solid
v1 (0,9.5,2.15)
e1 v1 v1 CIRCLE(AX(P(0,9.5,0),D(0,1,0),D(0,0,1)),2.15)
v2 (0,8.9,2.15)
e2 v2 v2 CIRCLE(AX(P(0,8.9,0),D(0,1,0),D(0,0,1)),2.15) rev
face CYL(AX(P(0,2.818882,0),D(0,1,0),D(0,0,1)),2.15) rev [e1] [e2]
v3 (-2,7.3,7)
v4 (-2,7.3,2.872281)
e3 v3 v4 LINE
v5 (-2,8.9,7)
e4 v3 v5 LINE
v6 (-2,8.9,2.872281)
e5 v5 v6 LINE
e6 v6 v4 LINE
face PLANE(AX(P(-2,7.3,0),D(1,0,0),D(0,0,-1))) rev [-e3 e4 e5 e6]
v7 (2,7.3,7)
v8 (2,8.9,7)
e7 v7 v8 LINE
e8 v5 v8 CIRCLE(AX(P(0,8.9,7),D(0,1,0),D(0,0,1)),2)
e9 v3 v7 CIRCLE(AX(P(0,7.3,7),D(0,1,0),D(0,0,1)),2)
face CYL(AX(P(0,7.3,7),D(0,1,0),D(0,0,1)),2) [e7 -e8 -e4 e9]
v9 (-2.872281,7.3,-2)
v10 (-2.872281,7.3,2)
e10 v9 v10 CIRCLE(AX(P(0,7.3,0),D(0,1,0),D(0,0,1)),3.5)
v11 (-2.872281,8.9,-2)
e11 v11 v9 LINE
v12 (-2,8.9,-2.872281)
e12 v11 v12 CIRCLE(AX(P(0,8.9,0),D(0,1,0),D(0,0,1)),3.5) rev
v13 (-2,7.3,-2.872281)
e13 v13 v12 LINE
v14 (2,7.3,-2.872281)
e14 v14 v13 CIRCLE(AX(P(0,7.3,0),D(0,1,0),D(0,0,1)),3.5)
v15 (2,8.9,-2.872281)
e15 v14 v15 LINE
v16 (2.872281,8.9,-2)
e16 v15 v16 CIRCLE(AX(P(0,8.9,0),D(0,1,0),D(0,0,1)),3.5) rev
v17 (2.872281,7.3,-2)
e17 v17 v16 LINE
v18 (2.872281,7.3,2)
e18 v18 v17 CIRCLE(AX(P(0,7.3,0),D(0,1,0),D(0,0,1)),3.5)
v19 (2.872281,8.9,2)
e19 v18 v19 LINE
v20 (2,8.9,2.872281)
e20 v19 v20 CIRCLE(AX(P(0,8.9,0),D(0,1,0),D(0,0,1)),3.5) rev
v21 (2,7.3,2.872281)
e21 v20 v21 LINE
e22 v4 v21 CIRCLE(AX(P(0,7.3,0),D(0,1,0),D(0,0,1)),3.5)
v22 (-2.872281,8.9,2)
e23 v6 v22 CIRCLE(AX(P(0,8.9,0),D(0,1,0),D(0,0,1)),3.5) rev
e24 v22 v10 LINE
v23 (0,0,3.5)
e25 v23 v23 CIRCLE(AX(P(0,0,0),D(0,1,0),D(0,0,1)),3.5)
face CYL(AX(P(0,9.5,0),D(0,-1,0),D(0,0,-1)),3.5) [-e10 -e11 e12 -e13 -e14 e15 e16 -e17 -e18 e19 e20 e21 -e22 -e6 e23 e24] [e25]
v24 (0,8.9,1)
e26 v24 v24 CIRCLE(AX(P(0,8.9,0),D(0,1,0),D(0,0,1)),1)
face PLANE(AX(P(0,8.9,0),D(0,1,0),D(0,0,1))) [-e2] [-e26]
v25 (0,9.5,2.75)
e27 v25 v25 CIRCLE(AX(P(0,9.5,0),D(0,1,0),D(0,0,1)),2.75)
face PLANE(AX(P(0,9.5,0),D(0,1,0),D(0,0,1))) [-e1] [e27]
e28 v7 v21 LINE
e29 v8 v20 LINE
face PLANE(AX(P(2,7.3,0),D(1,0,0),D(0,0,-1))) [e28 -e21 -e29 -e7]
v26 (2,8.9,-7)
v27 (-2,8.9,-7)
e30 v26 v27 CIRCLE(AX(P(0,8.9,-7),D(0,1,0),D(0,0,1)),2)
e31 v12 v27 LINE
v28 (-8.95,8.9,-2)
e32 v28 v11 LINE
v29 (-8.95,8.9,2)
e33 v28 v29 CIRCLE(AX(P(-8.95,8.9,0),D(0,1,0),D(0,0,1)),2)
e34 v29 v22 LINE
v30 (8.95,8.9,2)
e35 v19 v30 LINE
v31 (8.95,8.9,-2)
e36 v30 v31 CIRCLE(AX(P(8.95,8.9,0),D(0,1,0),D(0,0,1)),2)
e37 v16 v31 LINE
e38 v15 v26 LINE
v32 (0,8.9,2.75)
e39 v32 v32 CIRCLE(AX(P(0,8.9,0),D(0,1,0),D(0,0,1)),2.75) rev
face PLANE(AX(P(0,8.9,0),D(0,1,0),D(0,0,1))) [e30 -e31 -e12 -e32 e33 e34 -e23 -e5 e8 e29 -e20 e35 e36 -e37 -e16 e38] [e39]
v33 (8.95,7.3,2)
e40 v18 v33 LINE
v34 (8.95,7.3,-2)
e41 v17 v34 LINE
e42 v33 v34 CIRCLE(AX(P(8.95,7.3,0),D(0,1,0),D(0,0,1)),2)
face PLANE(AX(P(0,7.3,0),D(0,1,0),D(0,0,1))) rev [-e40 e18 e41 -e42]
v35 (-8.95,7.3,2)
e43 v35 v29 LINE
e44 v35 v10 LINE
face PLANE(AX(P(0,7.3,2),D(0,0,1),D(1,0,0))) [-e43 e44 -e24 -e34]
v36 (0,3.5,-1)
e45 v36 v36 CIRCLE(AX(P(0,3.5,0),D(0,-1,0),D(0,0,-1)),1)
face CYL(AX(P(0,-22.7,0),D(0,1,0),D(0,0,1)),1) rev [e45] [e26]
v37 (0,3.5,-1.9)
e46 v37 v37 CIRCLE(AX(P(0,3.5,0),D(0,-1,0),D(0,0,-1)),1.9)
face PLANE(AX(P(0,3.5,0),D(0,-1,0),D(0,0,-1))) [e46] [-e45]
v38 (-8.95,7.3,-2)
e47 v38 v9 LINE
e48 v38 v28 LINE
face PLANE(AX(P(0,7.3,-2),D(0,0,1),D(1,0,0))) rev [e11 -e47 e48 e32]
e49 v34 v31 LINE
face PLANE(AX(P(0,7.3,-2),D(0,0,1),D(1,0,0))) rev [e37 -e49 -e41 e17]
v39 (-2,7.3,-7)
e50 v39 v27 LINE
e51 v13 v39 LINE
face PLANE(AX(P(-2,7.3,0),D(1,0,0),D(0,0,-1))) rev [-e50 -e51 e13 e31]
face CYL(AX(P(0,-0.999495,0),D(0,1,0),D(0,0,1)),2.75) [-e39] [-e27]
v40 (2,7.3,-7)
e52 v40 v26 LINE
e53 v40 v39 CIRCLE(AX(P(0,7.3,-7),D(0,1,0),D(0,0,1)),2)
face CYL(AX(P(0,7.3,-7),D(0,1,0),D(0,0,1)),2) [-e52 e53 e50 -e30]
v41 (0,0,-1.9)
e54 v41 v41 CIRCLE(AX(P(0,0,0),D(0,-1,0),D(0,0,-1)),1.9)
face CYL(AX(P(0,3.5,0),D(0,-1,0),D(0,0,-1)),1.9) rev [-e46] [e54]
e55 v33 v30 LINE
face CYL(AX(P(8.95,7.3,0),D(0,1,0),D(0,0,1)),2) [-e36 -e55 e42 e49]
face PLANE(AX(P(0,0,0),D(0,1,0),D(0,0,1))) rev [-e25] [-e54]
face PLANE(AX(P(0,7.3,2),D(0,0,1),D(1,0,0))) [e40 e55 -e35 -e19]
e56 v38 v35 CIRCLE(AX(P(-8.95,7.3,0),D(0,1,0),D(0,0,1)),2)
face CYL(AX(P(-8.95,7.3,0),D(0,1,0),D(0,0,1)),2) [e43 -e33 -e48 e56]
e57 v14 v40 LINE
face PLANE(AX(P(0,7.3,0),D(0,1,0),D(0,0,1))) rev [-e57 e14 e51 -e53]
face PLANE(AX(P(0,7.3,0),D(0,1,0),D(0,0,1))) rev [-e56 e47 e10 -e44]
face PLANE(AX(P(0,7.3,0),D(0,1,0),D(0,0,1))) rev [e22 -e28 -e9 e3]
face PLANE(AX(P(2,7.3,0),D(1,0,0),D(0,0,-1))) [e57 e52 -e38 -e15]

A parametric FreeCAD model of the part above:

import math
import FreeCAD as App
import Part
import Sketcher

V = App.Vector
Q = App.Units.Quantity

doc = App.newDocument("Part")
params = doc.addObject("Spreadsheet::Sheet", "Params")
for row, (alias, value) in enumerate([
    ("sketch1_diameter", "7 mm"),
    ("pad1_length", "9.5 mm"),
    ("sketch2_diameter", "3.8 mm"),
    ("pocket1_length", "3.5 mm"),
    ("sketch3_radius", "2 mm"),
    ("sketch3_height", "5 mm"),
    ("sketch3_width", "6.95 mm"),
    ("pad2_length", "1.6 mm"),
    ("sketch4_diameter", "4.3 mm"),
    ("pocket2_length", "0.6 mm"),
    ("sketch5_diameter", "2 mm"),
    ("pocket3_length", "31.6 mm"),
    ("sketch6_diameter", "7 mm"),
    ("sketch6_diameter2", "5.5 mm"),
    ("pocket4_length", "0.6 mm"),
], start=1):
    params.set(f"A{row}", alias)
    params.set(f"B{row}", "=" + value)
    params.setAlias(f"B{row}", alias)

body = doc.addObject("PartDesign::Body", "Body")

sketch1 = body.newObject("Sketcher::SketchObject", "Sketch")
sketch1.AttachmentSupport = (doc.getObject("XZ_Plane"), [""])
sketch1.MapMode = "FlatFace"
sketch1.addGeometry(Part.Circle(V(0, 0, 0), V(0, 0, 1), 3.5), False)
sketch1.addConstraint([
    Sketcher.Constraint("Coincident", 0, 3, -1, 1),
    Sketcher.Constraint("Diameter", 0, Q("7 mm")),
])
sketch1.setExpression("Constraints[1]", "Params.sketch1_diameter")
pad1 = body.newObject("PartDesign::Pad", "Pad")
pad1.Profile = sketch1
pad1.setExpression("Length", "Params.pad1_length")
pad1.Reversed = True

sketch2 = body.newObject("Sketcher::SketchObject", "Sketch001")
sketch2.AttachmentSupport = (doc.getObject("XZ_Plane"), [""])
sketch2.MapMode = "FlatFace"
sketch2.addGeometry(Part.Circle(V(0, 0, 0), V(0, 0, 1), 1.9), False)
sketch2.addConstraint([
    Sketcher.Constraint("Coincident", 0, 3, -1, 1),
    Sketcher.Constraint("Diameter", 0, Q("3.8 mm")),
])
sketch2.setExpression("Constraints[1]", "Params.sketch2_diameter")
pocket1 = body.newObject("PartDesign::Pocket", "Pocket")
pocket1.Profile = sketch2
pocket1.setExpression("Length", "Params.pocket1_length")

sketch3 = body.newObject("Sketcher::SketchObject", "Sketch002")
sketch3.AttachmentSupport = (doc.getObject("XZ_Plane"), [""])
sketch3.MapMode = "FlatFace"
sketch3.AttachmentOffset = App.Placement(V(0, 0, -8.9), App.Rotation())
sketch3.addGeometry([
    Part.ArcOfCircle(Part.Circle(V(-8.9, 0, 0), V(0, 0, 1), 2), math.radians(90), math.radians(270)),
    Part.LineSegment(V(-8.9, 2, 0), V(-2, 2, 0)),
    Part.LineSegment(V(-2, 2, 0), V(-2, -2, 0)),
    Part.LineSegment(V(-2, -2, 0), V(-8.9, -2, 0)),
    Part.ArcOfCircle(Part.Circle(V(0, -7, 0), V(0, 0, 1), 2), math.radians(180), math.radians(360)),
    Part.LineSegment(V(-2, -7, 0), V(-2, -2, 0)),
    Part.LineSegment(V(-2, -2, 0), V(2, -2, 0)),
    Part.LineSegment(V(2, -2, 0), V(2, -7, 0)),
    Part.LineSegment(V(8.9, -2, 0), V(2, -2, 0)),
    Part.LineSegment(V(2, -2, 0), V(2, 2, 0)),
    Part.LineSegment(V(2, 2, 0), V(8.9, 2, 0)),
    Part.ArcOfCircle(Part.Circle(V(8.9, 0, 0), V(0, 0, 1), 2), math.radians(-90), math.radians(90)),
    Part.ArcOfCircle(Part.Circle(V(0, 7, 0), V(0, 0, 1), 2), math.radians(0), math.radians(180)),
    Part.LineSegment(V(2, 7, 0), V(2, 2, 0)),
    Part.LineSegment(V(2, 2, 0), V(-2, 2, 0)),
    Part.LineSegment(V(-2, 2, 0), V(-2, 7, 0)),
], False)
sketch3.addConstraint([
    Sketcher.Constraint("Tangent", 0, 1, 1, 1),
    Sketcher.Constraint("Coincident", 1, 2, 2, 1),
    Sketcher.Constraint("Coincident", 2, 2, 3, 1),
    Sketcher.Constraint("Tangent", 3, 2, 0, 2),
    Sketcher.Constraint("Tangent", 4, 1, 5, 1),
    Sketcher.Constraint("Coincident", 5, 2, 6, 1),
    Sketcher.Constraint("Coincident", 6, 2, 7, 1),
    Sketcher.Constraint("Tangent", 7, 2, 4, 2),
    Sketcher.Constraint("Coincident", 8, 2, 9, 1),
    Sketcher.Constraint("Coincident", 9, 2, 10, 1),
    Sketcher.Constraint("Tangent", 10, 2, 11, 2),
    Sketcher.Constraint("Tangent", 11, 1, 8, 1),
    Sketcher.Constraint("Tangent", 12, 1, 13, 1),
    Sketcher.Constraint("Coincident", 13, 2, 14, 1),
    Sketcher.Constraint("Coincident", 14, 2, 15, 1),
    Sketcher.Constraint("Tangent", 15, 2, 12, 2),
    Sketcher.Constraint("Horizontal", 1),
    Sketcher.Constraint("Vertical", 2),
    Sketcher.Constraint("Horizontal", 3),
    Sketcher.Constraint("Vertical", 5),
    Sketcher.Constraint("Horizontal", 6),
    Sketcher.Constraint("Vertical", 7),
    Sketcher.Constraint("Horizontal", 8),
    Sketcher.Constraint("Vertical", 9),
    Sketcher.Constraint("Horizontal", 10),
    Sketcher.Constraint("Vertical", 13),
    Sketcher.Constraint("Horizontal", 14),
    Sketcher.Constraint("Vertical", 15),
    Sketcher.Constraint("Coincident", 5, 2, 2, 2),
    Sketcher.Constraint("Coincident", 8, 2, 6, 2),
    Sketcher.Constraint("Coincident", 13, 2, 9, 2),
    Sketcher.Constraint("Coincident", 14, 2, 1, 2),
    Sketcher.Constraint("Equal", 0, 4),
    Sketcher.Constraint("Symmetric", 0, 3, 11, 3, -1, 1),
    Sketcher.Constraint("Symmetric", 4, 3, 12, 3, -1, 1),
    Sketcher.Constraint("Radius", 0, Q("2 mm")),
    Sketcher.Constraint("DistanceY", 5, 1, 5, 2, Q("5 mm")),
    Sketcher.Constraint("DistanceX", 1, 1, 1, 2, Q("6.95 mm")),
])
sketch3.setExpression("Constraints[35]", "Params.sketch3_radius")
sketch3.setExpression("Constraints[36]", "Params.sketch3_height")
sketch3.setExpression("Constraints[37]", "Params.sketch3_width")
pad2 = body.newObject("PartDesign::Pad", "Pad001")
pad2.Profile = sketch3
pad2.setExpression("Length", "Params.pad2_length")

sketch4 = body.newObject("Sketcher::SketchObject", "Sketch003")
sketch4.AttachmentSupport = (doc.getObject("XZ_Plane"), [""])
sketch4.MapMode = "FlatFace"
sketch4.AttachmentOffset = App.Placement(V(0, 0, -8.9), App.Rotation())
sketch4.addGeometry(Part.Circle(V(0, 0, 0), V(0, 0, 1), 2.1), False)
sketch4.addConstraint([
    Sketcher.Constraint("Coincident", 0, 3, -1, 1),
    Sketcher.Constraint("Diameter", 0, Q("4.3 mm")),
])
sketch4.setExpression("Constraints[1]", "Params.sketch4_diameter")
pocket2 = body.newObject("PartDesign::Pocket", "Pocket001")
pocket2.Profile = sketch4
pocket2.setExpression("Length", "Params.pocket2_length")

sketch5 = body.newObject("Sketcher::SketchObject", "Sketch004")
sketch5.AttachmentSupport = (doc.getObject("XZ_Plane"), [""])
sketch5.MapMode = "FlatFace"
sketch5.AttachmentOffset = App.Placement(V(0, 0, -8.9), App.Rotation())
sketch5.addGeometry(Part.Circle(V(0, 0, 0), V(0, 0, 1), 1), False)
sketch5.addConstraint([
    Sketcher.Constraint("Coincident", 0, 3, -1, 1),
    Sketcher.Constraint("Diameter", 0, Q("2 mm")),
])
sketch5.setExpression("Constraints[1]", "Params.sketch5_diameter")
pocket3 = body.newObject("PartDesign::Pocket", "Pocket002")
pocket3.Profile = sketch5
pocket3.setExpression("Length", "Params.pocket3_length")
pocket3.Reversed = True

sketch6 = body.newObject("Sketcher::SketchObject", "Sketch005")
sketch6.AttachmentSupport = (doc.getObject("XZ_Plane"), [""])
sketch6.MapMode = "FlatFace"
sketch6.AttachmentOffset = App.Placement(V(0, 0, -9.5), App.Rotation())
sketch6.addGeometry([
    Part.Circle(V(0, 0, 0), V(0, 0, 1), 3.5),
    Part.Circle(V(0, 0, 0), V(0, 0, 1), 2.8),
], False)
sketch6.addConstraint([
    Sketcher.Constraint("Coincident", 0, 3, -1, 1),
    Sketcher.Constraint("Coincident", 1, 3, -1, 1),
    Sketcher.Constraint("Diameter", 0, Q("7 mm")),
    Sketcher.Constraint("Diameter", 1, Q("5.5 mm")),
])
sketch6.setExpression("Constraints[2]", "Params.sketch6_diameter")
sketch6.setExpression("Constraints[3]", "Params.sketch6_diameter2")
pocket4 = body.newObject("PartDesign::Pocket", "Pocket003")
pocket4.Profile = sketch6
pocket4.setExpression("Length", "Params.pocket4_length")
pocket4.Reversed = True

doc.recompute()
